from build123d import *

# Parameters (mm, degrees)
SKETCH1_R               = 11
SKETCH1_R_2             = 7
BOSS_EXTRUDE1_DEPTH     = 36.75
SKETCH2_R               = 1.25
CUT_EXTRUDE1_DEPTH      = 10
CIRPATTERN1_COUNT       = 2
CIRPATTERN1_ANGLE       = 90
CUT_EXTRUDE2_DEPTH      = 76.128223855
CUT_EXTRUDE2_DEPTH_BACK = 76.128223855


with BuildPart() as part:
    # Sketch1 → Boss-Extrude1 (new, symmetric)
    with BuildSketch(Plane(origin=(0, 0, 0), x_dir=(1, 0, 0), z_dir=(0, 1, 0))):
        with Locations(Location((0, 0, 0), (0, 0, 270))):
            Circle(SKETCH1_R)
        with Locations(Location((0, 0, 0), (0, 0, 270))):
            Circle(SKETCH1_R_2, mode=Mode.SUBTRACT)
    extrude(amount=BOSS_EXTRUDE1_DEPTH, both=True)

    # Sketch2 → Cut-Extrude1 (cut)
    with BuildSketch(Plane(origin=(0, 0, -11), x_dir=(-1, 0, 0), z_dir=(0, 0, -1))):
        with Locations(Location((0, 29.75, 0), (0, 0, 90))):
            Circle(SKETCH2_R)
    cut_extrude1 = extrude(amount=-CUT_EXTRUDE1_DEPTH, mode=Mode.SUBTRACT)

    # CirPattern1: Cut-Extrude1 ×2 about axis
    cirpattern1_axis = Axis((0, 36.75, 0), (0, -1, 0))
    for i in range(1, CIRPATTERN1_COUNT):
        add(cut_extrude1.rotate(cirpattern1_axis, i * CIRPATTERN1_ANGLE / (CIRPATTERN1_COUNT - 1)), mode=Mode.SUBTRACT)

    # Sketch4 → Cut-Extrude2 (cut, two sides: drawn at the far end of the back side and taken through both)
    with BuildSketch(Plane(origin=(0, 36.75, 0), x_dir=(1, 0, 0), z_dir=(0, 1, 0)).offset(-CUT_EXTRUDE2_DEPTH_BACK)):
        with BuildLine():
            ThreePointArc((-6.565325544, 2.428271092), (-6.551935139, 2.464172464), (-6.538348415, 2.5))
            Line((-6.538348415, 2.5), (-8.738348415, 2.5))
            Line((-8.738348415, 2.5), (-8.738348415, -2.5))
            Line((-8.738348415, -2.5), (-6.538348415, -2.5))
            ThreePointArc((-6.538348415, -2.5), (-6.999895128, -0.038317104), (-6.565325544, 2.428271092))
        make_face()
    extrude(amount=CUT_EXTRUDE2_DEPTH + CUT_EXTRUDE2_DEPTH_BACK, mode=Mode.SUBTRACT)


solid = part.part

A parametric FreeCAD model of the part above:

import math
import FreeCAD as App
import Part
import Sketcher
from FreeCAD import Vector

doc = App.newDocument("Part")
body = doc.addObject("PartDesign::Body", "Body")

sketch1 = body.newObject("Sketcher::SketchObject", "Sketch")
sketch1.AttachmentSupport = (doc.getObject("XZ_Plane"), [""])
sketch1.MapMode = "FlatFace"
sketch1.addGeometry([
    Part.Circle(Vector(0, 0, 0), Vector(0, 0, 1), 11),
    Part.Circle(Vector(0, 0, 0), Vector(0, 0, 1), 7),
], False)
sketch1.addConstraint([
    Sketcher.Constraint("Coincident", 0, 3, -1, 1),
    Sketcher.Constraint("Coincident", 1, 3, -1, 1),
    Sketcher.Constraint("Diameter", 0, 22.0),
    Sketcher.Constraint("Diameter", 1, 14.0),
])
pad1 = body.newObject("PartDesign::Pad", "Pad")
pad1.Profile = sketch1
pad1.Length = 73.5
pad1.Midplane = True

sketch2 = body.newObject("Sketcher::SketchObject", "Sketch001")
sketch2.AttachmentSupport = (doc.getObject("XY_Plane"), [""])
sketch2.MapMode = "FlatFace"
sketch2.AttachmentOffset = App.Placement(Vector(0, 0, -11), App.Rotation())
sketch2.addGeometry(Part.Circle(Vector(0, 29.8, 0), Vector(0, 0, 1), 1.2), False)
sketch2.addConstraint([
    Sketcher.Constraint("PointOnObject", 0, 3, -2),
    Sketcher.Constraint("Diameter", 0, 2.5),
    Sketcher.Constraint("DistanceY", -1, 1, 0, 3, 29.75),
])
pocket1 = body.newObject("PartDesign::Pocket", "Pocket")
pocket1.Profile = sketch2
pocket1.Length = 10
pocket1.Reversed = True
doc.recompute()

polarpattern = body.newObject("PartDesign::PolarPattern", "PolarPattern")
polarpattern.Originals = [pocket1]
polarpattern.Axis = (doc.getObject("Y_Axis"), [""])
polarpattern.Angle = 90
polarpattern.Occurrences = 2
polarpattern.Reversed = True
body.Tip = polarpattern

sketch3 = body.newObject("Sketcher::SketchObject", "Sketch002")
sketch3.AttachmentSupport = (doc.getObject("XZ_Plane"), [""])
sketch3.MapMode = "FlatFace"
sketch3.AttachmentOffset = App.Placement(Vector(0, 0, -36.75), App.Rotation())
sketch3.addGeometry([
    Part.ArcOfCircle(Part.Circle(Vector(0, 0, 0), Vector(0, 0, 1), 7), math.radians(-159.7), math.radians(-159.08)),
    Part.LineSegment(Vector(-6.54, -2.5, 0), Vector(-8.74, -2.5, 0)),
    Part.LineSegment(Vector(-8.74, -2.5, 0), Vector(-8.74, 2.5, 0)),
    Part.LineSegment(Vector(-8.74, 2.5, 0), Vector(-6.54, 2.5, 0)),
    Part.ArcOfCircle(Part.Circle(Vector(0, 0, 0), Vector(0, 0, 1), 7), math.radians(159), math.radians(200)),
], False)
sketch3.addConstraint([
    Sketcher.Constraint("Coincident", 0, 2, 1, 1),
    Sketcher.Constraint("Coincident", 1, 2, 2, 1),
    Sketcher.Constraint("Coincident", 2, 2, 3, 1),
    Sketcher.Constraint("Coincident", 3, 2, 4, 1),
    Sketcher.Constraint("Tangent", 4, 2, 0, 1),
    Sketcher.Constraint("Horizontal", 1),
    Sketcher.Constraint("Vertical", 2),
    Sketcher.Constraint("Horizontal", 3),
    Sketcher.Constraint("Coincident", 4, 3, -1, 1),
    Sketcher.Constraint("Vertical", 0, 2, 3, 2),
    Sketcher.Constraint("Radius", 4, 7.0),
    Sketcher.Constraint("DistanceY", 2, 1, 2, 2, 5.0),
    Sketcher.Constraint("DistanceX", 1, 2, 1, 1, 2.2),
    Sketcher.Constraint("Radius", 0, 6.999988),
    Sketcher.Constraint("DistanceY", 4, 2, -1, 1, 2.428271),
])
pocket2 = body.newObject("PartDesign::Pocket", "Pocket001")
pocket2.Profile = sketch3
pocket2.Type = "ThroughAll"
pocket2.Midplane = True

doc.recompute()
